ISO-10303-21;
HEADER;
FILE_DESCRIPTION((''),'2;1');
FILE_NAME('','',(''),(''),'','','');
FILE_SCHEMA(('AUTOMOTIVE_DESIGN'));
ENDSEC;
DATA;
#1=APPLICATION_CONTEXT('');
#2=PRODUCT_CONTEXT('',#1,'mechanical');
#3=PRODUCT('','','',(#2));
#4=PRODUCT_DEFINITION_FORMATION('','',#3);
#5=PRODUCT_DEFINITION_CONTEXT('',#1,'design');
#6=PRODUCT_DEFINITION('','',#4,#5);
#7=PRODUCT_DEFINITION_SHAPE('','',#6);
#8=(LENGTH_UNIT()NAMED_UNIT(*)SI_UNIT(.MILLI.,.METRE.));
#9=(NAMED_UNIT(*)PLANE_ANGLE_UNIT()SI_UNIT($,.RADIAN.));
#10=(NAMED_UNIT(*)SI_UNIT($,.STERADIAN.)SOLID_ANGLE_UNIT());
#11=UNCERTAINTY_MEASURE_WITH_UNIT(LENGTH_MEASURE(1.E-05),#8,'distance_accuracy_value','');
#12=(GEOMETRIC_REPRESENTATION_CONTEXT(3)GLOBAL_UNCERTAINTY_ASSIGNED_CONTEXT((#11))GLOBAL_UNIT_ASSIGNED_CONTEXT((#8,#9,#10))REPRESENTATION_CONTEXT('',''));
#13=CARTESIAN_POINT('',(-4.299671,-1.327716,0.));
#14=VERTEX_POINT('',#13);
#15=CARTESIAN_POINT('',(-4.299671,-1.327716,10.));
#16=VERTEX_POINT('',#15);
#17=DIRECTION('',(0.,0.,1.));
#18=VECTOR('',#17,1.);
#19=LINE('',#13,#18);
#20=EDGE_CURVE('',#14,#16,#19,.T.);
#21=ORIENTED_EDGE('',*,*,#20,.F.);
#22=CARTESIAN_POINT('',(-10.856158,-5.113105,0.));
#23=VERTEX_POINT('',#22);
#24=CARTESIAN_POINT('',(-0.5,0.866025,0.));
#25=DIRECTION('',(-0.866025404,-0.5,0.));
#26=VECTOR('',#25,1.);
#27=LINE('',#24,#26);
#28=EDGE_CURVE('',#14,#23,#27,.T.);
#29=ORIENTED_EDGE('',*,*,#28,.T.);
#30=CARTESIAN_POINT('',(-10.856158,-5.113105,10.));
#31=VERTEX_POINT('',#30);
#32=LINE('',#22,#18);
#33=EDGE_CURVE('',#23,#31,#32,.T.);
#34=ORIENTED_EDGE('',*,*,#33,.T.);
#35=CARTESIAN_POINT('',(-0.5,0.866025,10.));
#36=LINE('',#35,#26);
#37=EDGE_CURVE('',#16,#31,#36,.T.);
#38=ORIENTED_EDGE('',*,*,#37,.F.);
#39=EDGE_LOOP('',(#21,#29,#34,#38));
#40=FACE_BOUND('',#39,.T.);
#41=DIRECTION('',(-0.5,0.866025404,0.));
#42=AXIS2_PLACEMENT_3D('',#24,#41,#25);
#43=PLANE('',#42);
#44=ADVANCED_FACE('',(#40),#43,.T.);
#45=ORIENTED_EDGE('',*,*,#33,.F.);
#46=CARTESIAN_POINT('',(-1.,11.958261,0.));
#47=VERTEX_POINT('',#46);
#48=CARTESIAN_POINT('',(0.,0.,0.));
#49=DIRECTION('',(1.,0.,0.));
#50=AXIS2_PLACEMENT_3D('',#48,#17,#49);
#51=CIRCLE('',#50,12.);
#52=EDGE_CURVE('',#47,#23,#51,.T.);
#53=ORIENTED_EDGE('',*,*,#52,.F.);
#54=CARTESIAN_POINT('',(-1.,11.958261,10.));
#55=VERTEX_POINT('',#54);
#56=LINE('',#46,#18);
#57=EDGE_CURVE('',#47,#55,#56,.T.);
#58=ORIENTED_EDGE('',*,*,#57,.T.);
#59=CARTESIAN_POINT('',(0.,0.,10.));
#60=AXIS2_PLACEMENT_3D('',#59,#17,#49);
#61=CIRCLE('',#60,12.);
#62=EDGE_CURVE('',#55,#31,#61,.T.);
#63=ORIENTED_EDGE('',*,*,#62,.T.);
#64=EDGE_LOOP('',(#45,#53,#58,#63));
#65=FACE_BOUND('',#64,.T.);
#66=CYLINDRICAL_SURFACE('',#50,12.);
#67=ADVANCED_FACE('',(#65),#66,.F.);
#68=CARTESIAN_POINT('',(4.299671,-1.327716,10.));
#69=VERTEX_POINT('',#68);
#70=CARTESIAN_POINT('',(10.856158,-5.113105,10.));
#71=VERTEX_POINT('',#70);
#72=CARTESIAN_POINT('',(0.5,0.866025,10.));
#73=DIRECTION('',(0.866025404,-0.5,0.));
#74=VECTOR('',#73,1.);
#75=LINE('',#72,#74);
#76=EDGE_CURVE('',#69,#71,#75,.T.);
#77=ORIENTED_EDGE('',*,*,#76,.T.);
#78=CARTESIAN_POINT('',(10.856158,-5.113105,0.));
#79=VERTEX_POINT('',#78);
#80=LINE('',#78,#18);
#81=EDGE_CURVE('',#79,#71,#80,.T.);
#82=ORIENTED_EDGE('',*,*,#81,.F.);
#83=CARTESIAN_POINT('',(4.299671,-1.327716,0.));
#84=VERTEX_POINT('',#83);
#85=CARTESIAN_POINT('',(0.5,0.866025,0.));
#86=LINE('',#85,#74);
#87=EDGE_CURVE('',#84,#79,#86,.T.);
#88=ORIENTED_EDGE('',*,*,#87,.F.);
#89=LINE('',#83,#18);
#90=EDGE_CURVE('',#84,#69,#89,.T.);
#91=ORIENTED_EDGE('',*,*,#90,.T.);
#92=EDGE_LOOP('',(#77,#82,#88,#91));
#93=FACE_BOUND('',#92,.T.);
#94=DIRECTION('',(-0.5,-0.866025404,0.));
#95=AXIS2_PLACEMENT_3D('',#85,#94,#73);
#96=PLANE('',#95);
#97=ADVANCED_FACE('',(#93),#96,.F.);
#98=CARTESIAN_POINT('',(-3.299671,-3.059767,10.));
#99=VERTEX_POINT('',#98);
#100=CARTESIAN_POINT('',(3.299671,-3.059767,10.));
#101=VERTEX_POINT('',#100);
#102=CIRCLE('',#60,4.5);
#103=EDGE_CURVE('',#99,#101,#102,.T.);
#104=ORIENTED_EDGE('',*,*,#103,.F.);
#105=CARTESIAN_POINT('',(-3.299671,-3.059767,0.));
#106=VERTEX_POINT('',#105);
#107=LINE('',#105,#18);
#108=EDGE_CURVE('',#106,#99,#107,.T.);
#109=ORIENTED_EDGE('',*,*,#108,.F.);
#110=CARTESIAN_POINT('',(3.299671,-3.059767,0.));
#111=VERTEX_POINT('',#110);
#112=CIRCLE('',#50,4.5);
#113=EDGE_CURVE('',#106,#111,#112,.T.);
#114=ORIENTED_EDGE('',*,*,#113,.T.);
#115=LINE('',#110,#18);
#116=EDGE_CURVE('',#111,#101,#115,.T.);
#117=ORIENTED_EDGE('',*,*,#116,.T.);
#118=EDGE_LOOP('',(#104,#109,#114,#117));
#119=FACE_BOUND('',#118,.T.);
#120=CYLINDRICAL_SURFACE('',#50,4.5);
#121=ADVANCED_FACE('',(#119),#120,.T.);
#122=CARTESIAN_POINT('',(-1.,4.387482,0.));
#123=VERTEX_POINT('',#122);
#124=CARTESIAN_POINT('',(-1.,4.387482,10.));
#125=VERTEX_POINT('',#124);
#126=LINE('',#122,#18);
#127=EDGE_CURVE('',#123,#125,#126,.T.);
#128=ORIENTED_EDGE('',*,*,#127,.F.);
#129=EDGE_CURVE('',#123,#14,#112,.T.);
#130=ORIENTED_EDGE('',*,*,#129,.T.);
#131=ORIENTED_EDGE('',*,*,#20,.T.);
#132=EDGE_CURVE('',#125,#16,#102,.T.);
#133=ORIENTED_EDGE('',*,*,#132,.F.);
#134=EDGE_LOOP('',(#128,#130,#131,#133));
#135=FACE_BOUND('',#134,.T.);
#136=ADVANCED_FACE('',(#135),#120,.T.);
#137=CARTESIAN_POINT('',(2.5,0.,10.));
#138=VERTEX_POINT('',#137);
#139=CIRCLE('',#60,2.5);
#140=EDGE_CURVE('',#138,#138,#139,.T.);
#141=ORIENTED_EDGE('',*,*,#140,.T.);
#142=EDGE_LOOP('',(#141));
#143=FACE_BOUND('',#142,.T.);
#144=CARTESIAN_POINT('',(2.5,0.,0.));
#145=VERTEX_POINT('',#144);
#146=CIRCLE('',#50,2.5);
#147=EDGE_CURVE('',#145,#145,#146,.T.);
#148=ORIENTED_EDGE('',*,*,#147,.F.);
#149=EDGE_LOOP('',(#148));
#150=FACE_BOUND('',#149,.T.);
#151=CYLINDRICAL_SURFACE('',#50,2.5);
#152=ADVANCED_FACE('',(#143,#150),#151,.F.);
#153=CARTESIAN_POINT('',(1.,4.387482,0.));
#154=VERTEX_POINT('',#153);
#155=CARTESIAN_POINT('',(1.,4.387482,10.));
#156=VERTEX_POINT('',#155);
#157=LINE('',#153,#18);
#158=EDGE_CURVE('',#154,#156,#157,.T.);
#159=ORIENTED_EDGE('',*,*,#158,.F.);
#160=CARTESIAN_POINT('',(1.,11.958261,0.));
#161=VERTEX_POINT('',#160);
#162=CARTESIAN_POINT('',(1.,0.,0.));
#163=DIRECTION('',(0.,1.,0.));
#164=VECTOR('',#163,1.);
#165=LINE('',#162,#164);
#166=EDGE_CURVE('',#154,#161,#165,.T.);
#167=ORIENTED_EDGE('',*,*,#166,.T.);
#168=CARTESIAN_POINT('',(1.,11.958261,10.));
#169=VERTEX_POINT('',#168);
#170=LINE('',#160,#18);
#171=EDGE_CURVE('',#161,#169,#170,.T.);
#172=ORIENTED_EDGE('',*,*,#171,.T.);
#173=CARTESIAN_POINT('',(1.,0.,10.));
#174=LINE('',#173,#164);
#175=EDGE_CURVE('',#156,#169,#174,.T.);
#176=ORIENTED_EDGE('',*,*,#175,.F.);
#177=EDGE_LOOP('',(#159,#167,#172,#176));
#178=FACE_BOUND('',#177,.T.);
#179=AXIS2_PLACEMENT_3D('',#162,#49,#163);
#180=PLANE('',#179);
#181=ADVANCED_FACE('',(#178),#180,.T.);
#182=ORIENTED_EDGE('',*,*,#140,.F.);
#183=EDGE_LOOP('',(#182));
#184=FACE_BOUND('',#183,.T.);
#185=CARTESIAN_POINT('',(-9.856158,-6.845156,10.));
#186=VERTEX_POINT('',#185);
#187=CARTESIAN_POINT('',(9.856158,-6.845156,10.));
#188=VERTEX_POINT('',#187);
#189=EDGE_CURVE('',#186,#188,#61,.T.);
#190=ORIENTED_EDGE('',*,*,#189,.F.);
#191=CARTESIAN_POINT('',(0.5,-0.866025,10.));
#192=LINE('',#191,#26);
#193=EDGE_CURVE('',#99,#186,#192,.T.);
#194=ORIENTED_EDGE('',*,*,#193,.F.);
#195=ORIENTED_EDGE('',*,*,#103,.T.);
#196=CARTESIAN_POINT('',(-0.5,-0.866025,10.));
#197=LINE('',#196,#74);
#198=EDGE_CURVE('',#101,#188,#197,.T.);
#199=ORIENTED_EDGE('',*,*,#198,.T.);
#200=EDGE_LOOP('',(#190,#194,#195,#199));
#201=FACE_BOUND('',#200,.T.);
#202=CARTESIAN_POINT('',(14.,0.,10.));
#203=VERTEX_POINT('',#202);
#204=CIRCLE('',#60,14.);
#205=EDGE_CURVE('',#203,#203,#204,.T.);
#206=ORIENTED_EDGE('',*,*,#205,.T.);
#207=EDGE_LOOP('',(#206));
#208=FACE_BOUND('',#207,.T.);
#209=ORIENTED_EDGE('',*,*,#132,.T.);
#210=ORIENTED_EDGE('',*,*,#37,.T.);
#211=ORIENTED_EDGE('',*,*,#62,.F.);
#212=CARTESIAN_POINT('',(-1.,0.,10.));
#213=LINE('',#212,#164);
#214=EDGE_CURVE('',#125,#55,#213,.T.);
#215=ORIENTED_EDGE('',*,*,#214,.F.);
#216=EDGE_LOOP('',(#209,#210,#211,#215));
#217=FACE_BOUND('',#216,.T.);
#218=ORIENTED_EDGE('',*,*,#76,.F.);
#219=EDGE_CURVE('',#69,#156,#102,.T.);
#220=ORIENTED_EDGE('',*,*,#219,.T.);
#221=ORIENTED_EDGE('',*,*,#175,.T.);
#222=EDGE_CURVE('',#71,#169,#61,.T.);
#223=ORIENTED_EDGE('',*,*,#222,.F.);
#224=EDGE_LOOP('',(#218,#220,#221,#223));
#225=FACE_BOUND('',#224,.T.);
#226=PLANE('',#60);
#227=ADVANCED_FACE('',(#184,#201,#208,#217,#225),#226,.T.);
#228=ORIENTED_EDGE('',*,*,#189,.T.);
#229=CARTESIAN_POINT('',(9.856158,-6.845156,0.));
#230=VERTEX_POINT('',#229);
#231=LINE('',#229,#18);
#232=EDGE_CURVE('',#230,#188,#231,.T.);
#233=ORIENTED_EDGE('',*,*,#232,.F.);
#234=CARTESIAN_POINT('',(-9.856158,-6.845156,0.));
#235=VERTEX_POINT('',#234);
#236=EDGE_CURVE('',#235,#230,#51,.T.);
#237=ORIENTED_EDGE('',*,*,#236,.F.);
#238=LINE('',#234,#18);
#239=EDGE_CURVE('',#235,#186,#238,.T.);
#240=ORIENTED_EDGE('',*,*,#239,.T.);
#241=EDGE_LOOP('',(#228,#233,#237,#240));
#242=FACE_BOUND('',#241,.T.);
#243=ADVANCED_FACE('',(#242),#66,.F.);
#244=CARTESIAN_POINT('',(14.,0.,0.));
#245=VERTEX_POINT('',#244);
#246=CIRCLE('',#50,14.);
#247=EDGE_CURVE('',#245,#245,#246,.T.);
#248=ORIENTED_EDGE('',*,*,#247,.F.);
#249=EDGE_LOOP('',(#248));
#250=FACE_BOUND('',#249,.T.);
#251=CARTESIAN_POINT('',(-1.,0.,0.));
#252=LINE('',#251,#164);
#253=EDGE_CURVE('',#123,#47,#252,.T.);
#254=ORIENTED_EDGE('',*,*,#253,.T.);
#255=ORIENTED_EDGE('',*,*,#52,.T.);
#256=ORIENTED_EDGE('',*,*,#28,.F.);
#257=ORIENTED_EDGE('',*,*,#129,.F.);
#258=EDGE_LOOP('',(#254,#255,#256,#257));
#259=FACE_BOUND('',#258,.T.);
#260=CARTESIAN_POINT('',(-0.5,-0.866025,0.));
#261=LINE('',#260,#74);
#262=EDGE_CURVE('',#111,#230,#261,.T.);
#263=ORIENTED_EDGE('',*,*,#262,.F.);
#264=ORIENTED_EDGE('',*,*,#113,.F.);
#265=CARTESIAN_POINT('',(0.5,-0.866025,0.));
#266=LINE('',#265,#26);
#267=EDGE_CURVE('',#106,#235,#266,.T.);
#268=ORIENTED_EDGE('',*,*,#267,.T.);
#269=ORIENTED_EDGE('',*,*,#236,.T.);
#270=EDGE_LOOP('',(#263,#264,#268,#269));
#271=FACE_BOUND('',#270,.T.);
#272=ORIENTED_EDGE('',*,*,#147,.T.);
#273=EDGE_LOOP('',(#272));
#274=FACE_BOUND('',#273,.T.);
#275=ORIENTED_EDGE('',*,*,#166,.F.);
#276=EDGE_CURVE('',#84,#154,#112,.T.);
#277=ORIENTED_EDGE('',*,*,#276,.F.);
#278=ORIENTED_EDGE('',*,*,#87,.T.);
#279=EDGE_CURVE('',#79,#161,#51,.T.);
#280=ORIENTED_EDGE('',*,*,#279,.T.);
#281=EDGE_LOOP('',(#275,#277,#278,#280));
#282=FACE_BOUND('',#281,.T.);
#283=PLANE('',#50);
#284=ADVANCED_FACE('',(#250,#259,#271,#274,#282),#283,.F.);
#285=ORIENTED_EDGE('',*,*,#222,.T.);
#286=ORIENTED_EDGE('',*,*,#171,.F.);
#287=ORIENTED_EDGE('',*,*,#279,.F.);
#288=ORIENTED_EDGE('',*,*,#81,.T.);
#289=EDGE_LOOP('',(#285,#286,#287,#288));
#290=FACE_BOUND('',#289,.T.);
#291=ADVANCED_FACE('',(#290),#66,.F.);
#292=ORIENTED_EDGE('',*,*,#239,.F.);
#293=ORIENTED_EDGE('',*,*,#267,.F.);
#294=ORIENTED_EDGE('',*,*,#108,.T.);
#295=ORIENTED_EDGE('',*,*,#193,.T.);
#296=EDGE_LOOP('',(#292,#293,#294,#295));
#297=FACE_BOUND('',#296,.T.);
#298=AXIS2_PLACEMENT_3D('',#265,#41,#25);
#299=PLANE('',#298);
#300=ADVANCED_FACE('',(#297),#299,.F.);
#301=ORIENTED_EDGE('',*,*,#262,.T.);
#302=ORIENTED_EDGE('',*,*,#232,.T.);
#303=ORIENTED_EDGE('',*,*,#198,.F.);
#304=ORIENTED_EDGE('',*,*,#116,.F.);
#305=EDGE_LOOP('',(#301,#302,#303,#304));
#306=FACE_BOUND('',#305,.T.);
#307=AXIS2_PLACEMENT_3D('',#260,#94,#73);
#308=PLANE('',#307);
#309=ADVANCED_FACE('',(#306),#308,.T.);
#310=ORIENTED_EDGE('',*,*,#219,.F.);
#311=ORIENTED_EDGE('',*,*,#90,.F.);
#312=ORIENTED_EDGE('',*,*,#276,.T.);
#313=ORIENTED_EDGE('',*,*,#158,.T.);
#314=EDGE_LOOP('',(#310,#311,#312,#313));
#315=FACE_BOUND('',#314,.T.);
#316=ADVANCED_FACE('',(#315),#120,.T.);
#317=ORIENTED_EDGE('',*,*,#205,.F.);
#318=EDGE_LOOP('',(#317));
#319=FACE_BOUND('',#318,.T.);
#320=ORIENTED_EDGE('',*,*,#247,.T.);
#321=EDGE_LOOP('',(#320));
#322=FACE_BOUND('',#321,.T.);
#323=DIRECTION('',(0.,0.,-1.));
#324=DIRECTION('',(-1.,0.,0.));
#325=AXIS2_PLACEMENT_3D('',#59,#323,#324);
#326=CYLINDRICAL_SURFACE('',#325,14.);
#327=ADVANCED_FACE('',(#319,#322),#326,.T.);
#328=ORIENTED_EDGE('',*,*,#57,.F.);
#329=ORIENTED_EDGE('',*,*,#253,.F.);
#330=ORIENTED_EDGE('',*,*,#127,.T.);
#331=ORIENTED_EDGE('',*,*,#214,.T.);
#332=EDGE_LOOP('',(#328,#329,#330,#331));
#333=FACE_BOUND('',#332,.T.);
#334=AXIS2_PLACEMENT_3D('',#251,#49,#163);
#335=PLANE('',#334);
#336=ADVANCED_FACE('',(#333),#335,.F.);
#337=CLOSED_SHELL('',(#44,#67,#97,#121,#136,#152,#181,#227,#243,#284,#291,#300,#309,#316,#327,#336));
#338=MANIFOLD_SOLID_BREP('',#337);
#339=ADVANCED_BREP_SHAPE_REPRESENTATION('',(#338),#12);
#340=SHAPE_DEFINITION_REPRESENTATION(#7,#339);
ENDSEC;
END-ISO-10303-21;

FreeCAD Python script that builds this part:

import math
import FreeCAD as App
import Part
import Sketcher

V = App.Vector
Q = App.Units.Quantity

doc = App.newDocument("Part")
params = doc.addObject("Spreadsheet::Sheet", "Params")
for row, (alias, value) in enumerate([
    ("sketch1_diameter", "28 mm"),
    ("pad1_length", "10 mm"),
    ("sketch2_diameter", "5 mm"),
    ("pocket1_length", "10 mm"),
    ("sketch3_radius", "12 mm"),
    ("sketch3_radius2", "4.5 mm"),
    ("pocket2_length", "10 mm"),
], start=1):
    params.set(f"A{row}", alias)
    params.set(f"B{row}", "=" + value)
    params.setAlias(f"B{row}", alias)

body = doc.addObject("PartDesign::Body", "Body")

# Sketch on XY plane
sketch1 = body.newObject("Sketcher::SketchObject", "Sketch")
sketch1.AttachmentSupport = (doc.getObject("XY_Plane"), [""])
sketch1.MapMode = "FlatFace"
sketch1.addGeometry(Part.Circle(V(0, 0, 0), V(0, 0, 1), 14), False)
sketch1.addConstraint(Sketcher.Constraint("Coincident", 0, 3, -1, 1))
sketch1.addConstraint(Sketcher.Constraint("Diameter", 0, 28.0))
sketch1.setExpression("Constraints[1]", "Params.sketch1_diameter")
pad1 = body.newObject("PartDesign::Pad", "Pad")
pad1.Profile = sketch1
pad1.setExpression("Length", "Params.pad1_length")

# Sketch on XY plane
sketch2 = body.newObject("Sketcher::SketchObject", "Sketch001")
sketch2.AttachmentSupport = (doc.getObject("XY_Plane"), [""])
sketch2.MapMode = "FlatFace"
sketch2.AttachmentOffset = App.Placement(V(0, 0, 10), App.Rotation())
sketch2.addGeometry(Part.Circle(V(0, 0, 0), V(0, 0, 1), 2.5), False)
sketch2.addConstraint(Sketcher.Constraint("Coincident", 0, 3, -1, 1))
sketch2.addConstraint(Sketcher.Constraint("Diameter", 0, 5.0))
sketch2.setExpression("Constraints[1]", "Params.sketch2_diameter")
pocket1 = body.newObject("PartDesign::Pocket", "Pocket")
pocket1.Profile = sketch2
pocket1.setExpression("Length", "Params.pocket1_length")

# Sketch on XY plane
sketch3 = body.newObject("Sketcher::SketchObject", "Sketch002")
sketch3.AttachmentSupport = (doc.getObject("XY_Plane"), [""])
sketch3.MapMode = "FlatFace"
sketch3.AttachmentOffset = App.Placement(V(0, 0, 10), App.Rotation())
sketch3.addGeometry(Part.ArcOfCircle(Part.Circle(V(0, 0, 0), V(0, 0, 1), 4.5), math.radians(103), math.radians(197)), False)
sketch3.addGeometry(Part.LineSegment(V(-1, 4.4, 0), V(-1, 12, 0)), False)
sketch3.addGeometry(Part.ArcOfCircle(Part.Circle(V(0, 0, 0), V(0, 0, 1), 12), math.radians(95), math.radians(205)), False)
sketch3.addGeometry(Part.LineSegment(V(-10.9, -5.1, 0), V(-4.3, -1.3, 0)), False)
sketch3.addGeometry(Part.LineSegment(V(1, 12, 0), V(1, 4.4, 0)), False)
sketch3.addGeometry(Part.ArcOfCircle(Part.Circle(V(0, 0, 0), V(0, 0, 1), 4.5), math.radians(0), math.radians(77)), False)
sketch3.addGeometry(Part.ArcOfCircle(Part.Circle(V(0, 0, 0), V(0, 0, 1), 4.5), math.radians(-17.16), math.radians(0)), False)
sketch3.addGeometry(Part.LineSegment(V(4.3, -1.3, 0), V(10.9, -5.1, 0)), False)
sketch3.addGeometry(Part.ArcOfCircle(Part.Circle(V(0, 0, 0), V(0, 0, 1), 12), math.radians(-25), math.radians(0)), False)
sketch3.addGeometry(Part.ArcOfCircle(Part.Circle(V(0, 0, 0), V(0, 0, 1), 12), math.radians(0), math.radians(85)), False)
sketch3.addGeometry(Part.ArcOfCircle(Part.Circle(V(0, 0, 0), V(0, 0, 1), 4.5), math.radians(-137), math.radians(-43)), False)
sketch3.addGeometry(Part.LineSegment(V(-3.3, -3.1, 0), V(-9.9, -6.8, 0)), False)
sketch3.addGeometry(Part.ArcOfCircle(Part.Circle(V(0, 0, 0), V(0, 0, 1), 12), math.radians(-145), math.radians(-35)), False)
sketch3.addGeometry(Part.LineSegment(V(9.9, -6.8, 0), V(3.3, -3.1, 0)), False)
sketch3.addConstraint(Sketcher.Constraint("Coincident", 0, 1, 1, 1))
sketch3.addConstraint(Sketcher.Constraint("Coincident", 1, 2, 2, 1))
sketch3.addConstraint(Sketcher.Constraint("Coincident", 2, 2, 3, 1))
sketch3.addConstraint(Sketcher.Constraint("Coincident", 3, 2, 0, 2))
sketch3.addConstraint(Sketcher.Constraint("Coincident", 4, 2, 5, 2))
sketch3.addConstraint(Sketcher.Constraint("Tangent", 5, 1, 6, 2))
sketch3.addConstraint(Sketcher.Constraint("Coincident", 6, 1, 7, 1))
sketch3.addConstraint(Sketcher.Constraint("Coincident", 7, 2, 8, 1))
sketch3.addConstraint(Sketcher.Constraint("Tangent", 8, 2, 9, 1))
sketch3.addConstraint(Sketcher.Constraint("Coincident", 9, 2, 4, 1))
sketch3.addConstraint(Sketcher.Constraint("Coincident", 10, 1, 11, 1))
sketch3.addConstraint(Sketcher.Constraint("Coincident", 11, 2, 12, 1))
sketch3.addConstraint(Sketcher.Constraint("Coincident", 12, 2, 13, 1))
sketch3.addConstraint(Sketcher.Constraint("Coincident", 13, 2, 10, 2))
sketch3.addConstraint(Sketcher.Constraint("Vertical", 1))
sketch3.addConstraint(Sketcher.Constraint("Vertical", 4))
sketch3.addConstraint(Sketcher.Constraint("Coincident", 0, 3, -1, 1))
sketch3.addConstraint(Sketcher.Constraint("Coincident", 2, 3, -1, 1))
sketch3.addConstraint(Sketcher.Constraint("Coincident", 5, 3, -1, 1))
sketch3.addConstraint(Sketcher.Constraint("Coincident", 8, 3, -1, 1))
sketch3.addConstraint(Sketcher.Constraint("Coincident", 10, 3, -1, 1))
sketch3.addConstraint(Sketcher.Constraint("Coincident", 12, 3, -1, 1))
sketch3.addConstraint(Sketcher.Constraint("Equal", 0, 5))
sketch3.addConstraint(Sketcher.Constraint("Equal", 5, 6))
sketch3.addConstraint(Sketcher.Constraint("Equal", 2, 8))
sketch3.addConstraint(Sketcher.Constraint("Equal", 8, 9))
sketch3.addConstraint(Sketcher.Constraint("Equal", 6, 10))
sketch3.addConstraint(Sketcher.Constraint("Equal", 9, 12))
sketch3.addConstraint(Sketcher.Constraint("PointOnObject", 5, 1, -1))
sketch3.addConstraint(Sketcher.Constraint("PointOnObject", 8, 2, -1))
sketch3.addConstraint(Sketcher.Constraint("Parallel", 3, 11))
sketch3.addConstraint(Sketcher.Constraint("Parallel", 7, 13))
sketch3.addConstraint(Sketcher.Constraint("Horizontal", 0, 1, 4, 2))
sketch3.addConstraint(Sketcher.Constraint("Horizontal", 3, 2, 6, 1))
sketch3.addConstraint(Sketcher.Constraint("Horizontal", 2, 2, 7, 2))
sketch3.addConstraint(Sketcher.Constraint("Horizontal", 11, 2, 12, 2))
sketch3.addConstraint(Sketcher.Constraint("Equal", 7, 11))
sketch3.addConstraint(Sketcher.Constraint("Radius", 2, 12.0))
sketch3.addConstraint(Sketcher.Constraint("Radius", 0, 4.5))
sketch3.addConstraint(Sketcher.Constraint("Angle", 3, Q("30 deg")))
sketch3.addConstraint(Sketcher.Constraint("DistanceX", 0, 1, -1, 1, 1.0))
sketch3.addConstraint(Sketcher.Constraint("DistanceX", 3, 2, 10, 1, 1.0))
sketch3.setExpression("Constraints[37]", "Params.sketch3_radius")
sketch3.setExpression("Constraints[38]", "Params.sketch3_radius2")
pocket2 = body.newObject("PartDesign::Pocket", "Pocket001")
pocket2.Profile = sketch3
pocket2.setExpression("Length", "Params.pocket2_length")

doc.recompute()
